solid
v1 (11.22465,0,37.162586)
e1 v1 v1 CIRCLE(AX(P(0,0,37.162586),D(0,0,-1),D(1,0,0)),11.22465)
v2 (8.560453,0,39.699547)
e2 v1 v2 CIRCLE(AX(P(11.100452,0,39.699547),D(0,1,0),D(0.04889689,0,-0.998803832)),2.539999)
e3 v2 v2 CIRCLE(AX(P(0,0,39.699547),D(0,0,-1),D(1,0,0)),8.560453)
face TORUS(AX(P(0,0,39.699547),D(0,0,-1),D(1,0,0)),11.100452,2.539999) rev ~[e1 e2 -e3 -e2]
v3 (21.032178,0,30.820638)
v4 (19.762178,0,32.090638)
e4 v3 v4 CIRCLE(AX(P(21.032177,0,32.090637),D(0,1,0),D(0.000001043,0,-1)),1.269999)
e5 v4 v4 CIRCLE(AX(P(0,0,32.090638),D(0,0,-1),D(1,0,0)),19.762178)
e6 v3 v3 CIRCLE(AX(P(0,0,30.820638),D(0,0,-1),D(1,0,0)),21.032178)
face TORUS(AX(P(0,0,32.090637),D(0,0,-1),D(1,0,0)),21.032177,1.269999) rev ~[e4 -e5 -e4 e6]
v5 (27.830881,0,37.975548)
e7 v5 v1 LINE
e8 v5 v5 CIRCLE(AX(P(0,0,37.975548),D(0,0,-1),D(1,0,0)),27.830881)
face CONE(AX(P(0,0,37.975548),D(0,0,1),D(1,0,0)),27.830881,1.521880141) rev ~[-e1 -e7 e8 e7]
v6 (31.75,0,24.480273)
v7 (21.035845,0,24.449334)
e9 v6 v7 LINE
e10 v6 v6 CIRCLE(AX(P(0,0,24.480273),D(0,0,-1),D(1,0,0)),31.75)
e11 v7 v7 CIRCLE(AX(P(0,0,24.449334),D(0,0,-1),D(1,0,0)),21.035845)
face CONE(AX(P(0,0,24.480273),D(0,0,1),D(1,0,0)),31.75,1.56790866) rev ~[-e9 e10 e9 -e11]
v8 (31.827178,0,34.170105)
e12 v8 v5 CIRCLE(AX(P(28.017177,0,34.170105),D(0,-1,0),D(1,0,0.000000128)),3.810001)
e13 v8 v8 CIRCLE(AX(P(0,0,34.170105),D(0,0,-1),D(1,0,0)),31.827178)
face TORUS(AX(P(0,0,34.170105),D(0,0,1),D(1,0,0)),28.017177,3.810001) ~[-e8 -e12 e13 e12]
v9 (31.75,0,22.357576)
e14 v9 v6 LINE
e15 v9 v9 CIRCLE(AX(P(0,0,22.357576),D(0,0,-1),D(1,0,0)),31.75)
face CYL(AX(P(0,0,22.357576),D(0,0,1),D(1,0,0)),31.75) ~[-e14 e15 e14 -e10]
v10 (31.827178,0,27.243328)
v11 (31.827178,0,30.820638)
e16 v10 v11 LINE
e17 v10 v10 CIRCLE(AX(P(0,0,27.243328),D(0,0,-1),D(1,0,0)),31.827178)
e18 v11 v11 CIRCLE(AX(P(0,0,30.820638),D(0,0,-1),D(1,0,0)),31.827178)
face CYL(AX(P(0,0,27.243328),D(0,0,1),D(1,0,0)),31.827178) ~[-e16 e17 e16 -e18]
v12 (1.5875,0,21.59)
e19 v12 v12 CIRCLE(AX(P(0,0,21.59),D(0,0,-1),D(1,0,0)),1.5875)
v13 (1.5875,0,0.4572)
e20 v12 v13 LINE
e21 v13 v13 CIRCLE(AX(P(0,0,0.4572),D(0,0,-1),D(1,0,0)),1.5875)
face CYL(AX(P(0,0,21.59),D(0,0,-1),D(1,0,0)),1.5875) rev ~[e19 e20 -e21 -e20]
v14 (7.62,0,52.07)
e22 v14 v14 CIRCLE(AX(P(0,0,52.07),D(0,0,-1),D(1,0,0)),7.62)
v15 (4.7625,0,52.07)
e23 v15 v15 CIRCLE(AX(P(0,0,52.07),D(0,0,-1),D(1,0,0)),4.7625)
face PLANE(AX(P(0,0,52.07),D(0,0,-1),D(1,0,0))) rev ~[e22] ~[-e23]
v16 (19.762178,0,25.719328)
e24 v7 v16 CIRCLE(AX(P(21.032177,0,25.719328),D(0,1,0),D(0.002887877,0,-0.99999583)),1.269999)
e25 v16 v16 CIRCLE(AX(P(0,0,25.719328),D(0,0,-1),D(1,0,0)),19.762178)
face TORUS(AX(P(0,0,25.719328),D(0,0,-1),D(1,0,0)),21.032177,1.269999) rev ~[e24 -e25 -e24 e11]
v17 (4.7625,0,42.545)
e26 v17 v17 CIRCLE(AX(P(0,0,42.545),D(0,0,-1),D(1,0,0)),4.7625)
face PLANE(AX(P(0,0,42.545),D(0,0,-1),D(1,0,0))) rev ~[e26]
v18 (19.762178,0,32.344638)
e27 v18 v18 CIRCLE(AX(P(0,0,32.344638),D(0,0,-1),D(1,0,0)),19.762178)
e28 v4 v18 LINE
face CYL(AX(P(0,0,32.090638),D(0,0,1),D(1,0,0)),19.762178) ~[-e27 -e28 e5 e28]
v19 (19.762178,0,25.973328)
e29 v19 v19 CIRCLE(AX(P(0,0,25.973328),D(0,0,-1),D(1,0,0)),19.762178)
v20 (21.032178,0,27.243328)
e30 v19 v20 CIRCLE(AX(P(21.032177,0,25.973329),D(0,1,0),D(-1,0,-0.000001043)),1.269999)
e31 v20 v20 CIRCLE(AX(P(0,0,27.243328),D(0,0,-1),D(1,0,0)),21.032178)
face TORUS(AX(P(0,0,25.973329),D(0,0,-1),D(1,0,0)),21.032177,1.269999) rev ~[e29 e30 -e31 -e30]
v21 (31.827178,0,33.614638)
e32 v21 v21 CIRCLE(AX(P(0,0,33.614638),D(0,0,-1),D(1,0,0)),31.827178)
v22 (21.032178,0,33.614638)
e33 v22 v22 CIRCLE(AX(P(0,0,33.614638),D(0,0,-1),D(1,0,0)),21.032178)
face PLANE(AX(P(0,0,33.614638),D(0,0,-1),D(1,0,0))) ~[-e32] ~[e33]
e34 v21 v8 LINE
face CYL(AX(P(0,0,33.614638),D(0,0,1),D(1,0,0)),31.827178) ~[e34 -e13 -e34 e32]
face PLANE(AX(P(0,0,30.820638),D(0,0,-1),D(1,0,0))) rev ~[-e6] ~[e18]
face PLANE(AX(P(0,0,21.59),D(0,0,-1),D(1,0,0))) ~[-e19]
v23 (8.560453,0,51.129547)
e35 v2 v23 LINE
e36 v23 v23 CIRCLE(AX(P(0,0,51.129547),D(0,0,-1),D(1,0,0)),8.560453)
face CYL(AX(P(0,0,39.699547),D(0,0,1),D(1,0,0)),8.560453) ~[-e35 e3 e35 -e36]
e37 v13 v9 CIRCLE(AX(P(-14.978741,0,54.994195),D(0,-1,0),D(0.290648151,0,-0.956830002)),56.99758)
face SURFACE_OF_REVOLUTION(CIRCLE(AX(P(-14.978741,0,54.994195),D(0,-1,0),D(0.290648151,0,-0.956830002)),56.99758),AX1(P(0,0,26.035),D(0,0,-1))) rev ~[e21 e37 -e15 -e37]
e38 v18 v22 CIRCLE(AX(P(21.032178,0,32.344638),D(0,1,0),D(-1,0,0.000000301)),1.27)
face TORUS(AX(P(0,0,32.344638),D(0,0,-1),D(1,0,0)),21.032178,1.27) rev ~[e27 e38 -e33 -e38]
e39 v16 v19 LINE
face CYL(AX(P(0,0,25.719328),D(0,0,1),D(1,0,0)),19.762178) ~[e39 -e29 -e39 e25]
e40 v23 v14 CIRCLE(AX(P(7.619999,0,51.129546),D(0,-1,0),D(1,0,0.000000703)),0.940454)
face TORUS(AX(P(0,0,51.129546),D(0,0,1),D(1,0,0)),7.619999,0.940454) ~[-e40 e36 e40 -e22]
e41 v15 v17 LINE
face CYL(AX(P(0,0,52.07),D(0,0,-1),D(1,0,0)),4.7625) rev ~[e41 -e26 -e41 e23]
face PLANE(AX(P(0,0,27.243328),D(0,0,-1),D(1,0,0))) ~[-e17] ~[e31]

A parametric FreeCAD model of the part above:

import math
import FreeCAD as App
import Part
import Sketcher
Q = App.Units.Quantity

doc = App.newDocument("Part")
body = doc.addObject("PartDesign::Body", "Body")

sketch1 = body.newObject("Sketcher::SketchObject", "Sketch")
sketch1.AttachmentSupport = (doc.getObject("XZ_Plane"), [""])
sketch1.MapMode = "FlatFace"
sketch1.addGeometry(Part.LineSegment(App.Vector(31.75, 22.357576, 0), App.Vector(31.75, 24.480273, 0)), False)
sketch1.addGeometry(Part.LineSegment(App.Vector(31.75, 24.480273, 0), App.Vector(21.035845, 24.449334, 0)), False)
sketch1.addGeometry(Part.ArcOfCircle(Part.Circle(App.Vector(21.032177, 25.719328, 0), App.Vector(0, 0, 1), 1.269999), math.radians(-179.999995), math.radians(-89.834537)), False)
sketch1.addGeometry(Part.LineSegment(App.Vector(19.762178, 25.719328, 0), App.Vector(19.762178, 25.973328, 0)), False)
sketch1.addGeometry(Part.ArcOfCircle(Part.Circle(App.Vector(21.032177, 25.973329, 0), App.Vector(0, 0, 1), 1.269999), math.radians(89.99994), math.radians(180.00006)), False)
sketch1.addGeometry(Part.LineSegment(App.Vector(21.032178, 27.243328, 0), App.Vector(31.827178, 27.243328, 0)), False)
sketch1.addGeometry(Part.LineSegment(App.Vector(31.827178, 27.243328, 0), App.Vector(31.827178, 30.820638, 0)), False)
sketch1.addGeometry(Part.LineSegment(App.Vector(31.827178, 30.820638, 0), App.Vector(21.032178, 30.820638, 0)), False)
sketch1.addGeometry(Part.ArcOfCircle(Part.Circle(App.Vector(21.032177, 32.090637, 0), App.Vector(0, 0, 1), 1.269999), math.radians(179.99994), math.radians(270.00006)), False)
sketch1.addGeometry(Part.LineSegment(App.Vector(19.762178, 32.090638, 0), App.Vector(19.762178, 32.344638, 0)), False)
sketch1.addGeometry(Part.ArcOfCircle(Part.Circle(App.Vector(21.032178, 32.344638, 0), App.Vector(0, 0, 1), 1.27), math.radians(90.000017), math.radians(179.999983)), False)
sketch1.addGeometry(Part.LineSegment(App.Vector(21.032178, 33.614638, 0), App.Vector(31.827178, 33.614638, 0)), False)
sketch1.addGeometry(Part.LineSegment(App.Vector(31.827178, 33.614638, 0), App.Vector(31.827178, 34.170105, 0)), False)
sketch1.addGeometry(Part.ArcOfCircle(Part.Circle(App.Vector(28.017177, 34.170105, 0), App.Vector(0, 0, 1), 3.810001), math.radians(0.000007), math.radians(92.802687)), False)
sketch1.addGeometry(Part.LineSegment(App.Vector(27.830881, 37.975548, 0), App.Vector(11.22465, 37.162586, 0)), False)
sketch1.addGeometry(Part.ArcOfCircle(Part.Circle(App.Vector(11.100452, 39.699547, 0), App.Vector(0, 0, 1), 2.539999), math.radians(179.999993), math.radians(272.802703)), False)
sketch1.addGeometry(Part.LineSegment(App.Vector(8.560453, 39.699547, 0), App.Vector(8.560453, 51.129547, 0)), False)
sketch1.addGeometry(Part.ArcOfCircle(Part.Circle(App.Vector(7.619999, 51.129546, 0), App.Vector(0, 0, 1), 0.940454), math.radians(0.00004), math.radians(89.99996)), False)
sketch1.addGeometry(Part.LineSegment(App.Vector(7.62, 52.07, 0), App.Vector(4.7625, 52.07, 0)), False)
sketch1.addGeometry(Part.LineSegment(App.Vector(4.7625, 52.07, 0), App.Vector(4.7625, 42.545, 0)), False)
sketch1.addGeometry(Part.LineSegment(App.Vector(4.7625, 42.545, 0), App.Vector(0, 42.545, 0)), False)
sketch1.addGeometry(Part.LineSegment(App.Vector(0, 42.545, 0), App.Vector(0, 21.59, 0)), False)
sketch1.addGeometry(Part.LineSegment(App.Vector(0, 21.59, 0), App.Vector(1.5875, 21.59, 0)), False)
sketch1.addGeometry(Part.LineSegment(App.Vector(1.5875, 21.59, 0), App.Vector(1.5875, 0.4572, 0)), False)
sketch1.addGeometry(Part.ArcOfCircle(Part.Circle(App.Vector(-14.978741, 54.994195, 0), App.Vector(0, 0, 1), 56.99758), math.radians(-73.103236), math.radians(-34.931491)), False)
sketch1.addConstraint(Sketcher.Constraint("Coincident", 0, 2, 1, 1))
sketch1.addConstraint(Sketcher.Constraint("Tangent", 1, 2, 2, 2))
sketch1.addConstraint(Sketcher.Constraint("Tangent", 2, 1, 3, 1))
sketch1.addConstraint(Sketcher.Constraint("Tangent", 3, 2, 4, 2))
sketch1.addConstraint(Sketcher.Constraint("Tangent", 4, 1, 5, 1))
sketch1.addConstraint(Sketcher.Constraint("Coincident", 5, 2, 6, 1))
sketch1.addConstraint(Sketcher.Constraint("Coincident", 6, 2, 7, 1))
sketch1.addConstraint(Sketcher.Constraint("Tangent", 7, 2, 8, 2))
sketch1.addConstraint(Sketcher.Constraint("Tangent", 8, 1, 9, 1))
sketch1.addConstraint(Sketcher.Constraint("Tangent", 9, 2, 10, 2))
sketch1.addConstraint(Sketcher.Constraint("Tangent", 10, 1, 11, 1))
sketch1.addConstraint(Sketcher.Constraint("Coincident", 11, 2, 12, 1))
sketch1.addConstraint(Sketcher.Constraint("Tangent", 12, 2, 13, 1))
sketch1.addConstraint(Sketcher.Constraint("Tangent", 13, 2, 14, 1))
sketch1.addConstraint(Sketcher.Constraint("Tangent", 14, 2, 15, 2))
sketch1.addConstraint(Sketcher.Constraint("Tangent", 15, 1, 16, 1))
sketch1.addConstraint(Sketcher.Constraint("Tangent", 16, 2, 17, 1))
sketch1.addConstraint(Sketcher.Constraint("Tangent", 17, 2, 18, 1))
sketch1.addConstraint(Sketcher.Constraint("Coincident", 18, 2, 19, 1))
sketch1.addConstraint(Sketcher.Constraint("Coincident", 19, 2, 20, 1))
sketch1.addConstraint(Sketcher.Constraint("Coincident", 20, 2, 21, 1))
sketch1.addConstraint(Sketcher.Constraint("Coincident", 21, 2, 22, 1))
sketch1.addConstraint(Sketcher.Constraint("Coincident", 22, 2, 23, 1))
sketch1.addConstraint(Sketcher.Constraint("Coincident", 23, 2, 24, 1))
sketch1.addConstraint(Sketcher.Constraint("Coincident", 24, 2, 0, 1))
sketch1.addConstraint(Sketcher.Constraint("Vertical", 0))
sketch1.addConstraint(Sketcher.Constraint("Vertical", 3))
sketch1.addConstraint(Sketcher.Constraint("Horizontal", 5))
sketch1.addConstraint(Sketcher.Constraint("Vertical", 6))
sketch1.addConstraint(Sketcher.Constraint("Horizontal", 7))
sketch1.addConstraint(Sketcher.Constraint("Vertical", 9))
sketch1.addConstraint(Sketcher.Constraint("Horizontal", 11))
sketch1.addConstraint(Sketcher.Constraint("Vertical", 12))
sketch1.addConstraint(Sketcher.Constraint("Vertical", 16))
sketch1.addConstraint(Sketcher.Constraint("Horizontal", 18))
sketch1.addConstraint(Sketcher.Constraint("Vertical", 19))
sketch1.addConstraint(Sketcher.Constraint("Horizontal", 20))
sketch1.addConstraint(Sketcher.Constraint("Vertical", 21))
sketch1.addConstraint(Sketcher.Constraint("Horizontal", 22))
sketch1.addConstraint(Sketcher.Constraint("Vertical", 23))
sketch1.addConstraint(Sketcher.Constraint("Equal", 2, 4))
sketch1.addConstraint(Sketcher.Constraint("Equal", 4, 8))
sketch1.addConstraint(Sketcher.Constraint("Equal", 8, 10))
sketch1.addConstraint(Sketcher.Constraint("PointOnObject", 20, 2, -2))
sketch1.addConstraint(Sketcher.Constraint("Vertical", 4, 3, 8, 3))
sketch1.addConstraint(Sketcher.Constraint("Vertical", 6, 2, 11, 2))
sketch1.addConstraint(Sketcher.Constraint("Equal", 3, 9))
sketch1.addConstraint(Sketcher.Constraint("Radius", 15, Q("0.1 in")))
sketch1.addConstraint(Sketcher.Constraint("Radius", 2, Q("0.05 in")))
sketch1.addConstraint(Sketcher.Constraint("Radius", 13, Q("0.15 in")))
sketch1.addConstraint(Sketcher.Constraint("DistanceY", 3, 1, 3, 2, Q("0.01 in")))
sketch1.addConstraint(Sketcher.Constraint("DistanceY", 16, 1, 16, 2, Q("0.45 in")))
sketch1.addConstraint(Sketcher.Constraint("DistanceX", -1, 1, 17, 3, Q("0.3 in")))
sketch1.addConstraint(Sketcher.Constraint("DistanceX", 5, 1, 5, 2, Q("0.425 in")))
sketch1.addConstraint(Sketcher.Constraint("DistanceX", 20, 2, 20, 1, Q("0.1875 in")))
sketch1.addConstraint(Sketcher.Constraint("DistanceX", 22, 1, 22, 2, Q("0.0625 in")))
sketch1.addConstraint(Sketcher.Constraint("DistanceY", 19, 2, 19, 1, Q("0.375 in")))
sketch1.addConstraint(Sketcher.Constraint("DistanceY", 21, 2, 21, 1, Q("0.825 in")))
sketch1.addConstraint(Sketcher.Constraint("DistanceY", 23, 2, 23, 1, Q("0.832 in")))
sketch1.addConstraint(Sketcher.Constraint("DistanceX", -1, 1, 0, 2, Q("1.25 in")))
sketch1.addConstraint(Sketcher.Constraint("DistanceY", -1, 1, 17, 2, Q("2.05 in")))
sketch1.addConstraint(Sketcher.Constraint("Radius", 24, Q("56.99758 mm")))
sketch1.addConstraint(Sketcher.Constraint("Radius", 17, Q("0.940454 mm")))
sketch1.addConstraint(Sketcher.Constraint("Distance", 1, Q("10.7142 mm")))
sketch1.addConstraint(Sketcher.Constraint("DistanceY", 6, 1, 6, 2, Q("3.57731 mm")))
sketch1.addConstraint(Sketcher.Constraint("DistanceX", 15, 3, 14, 2, Q("0.124198 mm")))
sketch1.addConstraint(Sketcher.Constraint("Distance", 14, Q("16.626118 mm")))
sketch1.addConstraint(Sketcher.Constraint("DistanceY", 0, 1, 0, 2, Q("2.122697 mm")))
sketch1.addConstraint(Sketcher.Constraint("DistanceY", 12, 1, 12, 2, Q("0.555467 mm")))
revolution = body.newObject("PartDesign::Revolution", "Revolution")
revolution.Profile = sketch1
revolution.ReferenceAxis = (sketch1, ["V_Axis"])
revolution.Angle = 360

doc.recompute()
